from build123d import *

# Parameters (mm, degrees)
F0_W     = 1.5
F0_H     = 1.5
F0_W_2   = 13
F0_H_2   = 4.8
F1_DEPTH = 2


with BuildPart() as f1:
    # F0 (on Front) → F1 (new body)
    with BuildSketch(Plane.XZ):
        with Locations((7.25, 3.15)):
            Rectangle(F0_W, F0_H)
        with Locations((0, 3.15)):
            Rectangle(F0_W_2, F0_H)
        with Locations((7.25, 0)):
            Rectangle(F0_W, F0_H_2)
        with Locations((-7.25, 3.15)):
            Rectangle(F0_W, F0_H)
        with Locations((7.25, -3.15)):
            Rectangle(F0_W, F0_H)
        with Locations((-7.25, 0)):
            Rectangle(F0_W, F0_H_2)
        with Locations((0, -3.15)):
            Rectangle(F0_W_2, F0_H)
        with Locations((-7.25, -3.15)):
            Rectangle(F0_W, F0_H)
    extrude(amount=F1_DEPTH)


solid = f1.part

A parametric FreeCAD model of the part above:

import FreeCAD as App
import Part
import Sketcher
Q = App.Units.Quantity


def add_polygon(sketch, points):
    """Adds a closed chain of lines whose ends are joined by coincident constraints."""
    first, n = sketch.GeometryCount, len(points)
    for a, b in zip(points, points[1:] + points[:1]):
        sketch.addGeometry(Part.LineSegment(App.Vector(*a, 0), App.Vector(*b, 0)), False)
    for i in range(n):
        sketch.addConstraint(Sketcher.Constraint("Coincident", first + i, 2, first + (i + 1) % n, 1))

doc = App.newDocument("Part")
body = doc.addObject("PartDesign::Body", "Body")

sketch1 = body.newObject("Sketcher::SketchObject", "Sketch")
sketch1.AttachmentSupport = (doc.getObject("XZ_Plane"), [""])
sketch1.MapMode = "FlatFace"
add_polygon(sketch1, [(-8, 3.9), (-8, -3.9), (8, -3.9), (8, 3.9)])
add_polygon(sketch1, [(6.5, -2.4), (-6.5, -2.4), (-6.5, 2.4), (6.5, 2.4)])
sketch1.addConstraint(Sketcher.Constraint("Vertical", 0))
sketch1.addConstraint(Sketcher.Constraint("Horizontal", 1))
sketch1.addConstraint(Sketcher.Constraint("Vertical", 2))
sketch1.addConstraint(Sketcher.Constraint("Horizontal", 3))
sketch1.addConstraint(Sketcher.Constraint("Horizontal", 4))
sketch1.addConstraint(Sketcher.Constraint("Vertical", 5))
sketch1.addConstraint(Sketcher.Constraint("Horizontal", 6))
sketch1.addConstraint(Sketcher.Constraint("Vertical", 7))
sketch1.addConstraint(Sketcher.Constraint("Symmetric", 0, 2, 2, 2, -1, 1))
sketch1.addConstraint(Sketcher.Constraint("Symmetric", 4, 2, 6, 2, -1, 1))
sketch1.addConstraint(Sketcher.Constraint("DistanceX", 1, 1, 1, 2, Q("16 mm")))
sketch1.addConstraint(Sketcher.Constraint("DistanceX", 4, 2, 4, 1, Q("13 mm")))
sketch1.addConstraint(Sketcher.Constraint("DistanceY", 0, 2, 0, 1, Q("7.8 mm")))
sketch1.addConstraint(Sketcher.Constraint("DistanceY", 5, 1, 5, 2, Q("4.8 mm")))
pad1 = body.newObject("PartDesign::Pad", "Pad")
pad1.Profile = sketch1
pad1.Length = 2

doc.recompute()
